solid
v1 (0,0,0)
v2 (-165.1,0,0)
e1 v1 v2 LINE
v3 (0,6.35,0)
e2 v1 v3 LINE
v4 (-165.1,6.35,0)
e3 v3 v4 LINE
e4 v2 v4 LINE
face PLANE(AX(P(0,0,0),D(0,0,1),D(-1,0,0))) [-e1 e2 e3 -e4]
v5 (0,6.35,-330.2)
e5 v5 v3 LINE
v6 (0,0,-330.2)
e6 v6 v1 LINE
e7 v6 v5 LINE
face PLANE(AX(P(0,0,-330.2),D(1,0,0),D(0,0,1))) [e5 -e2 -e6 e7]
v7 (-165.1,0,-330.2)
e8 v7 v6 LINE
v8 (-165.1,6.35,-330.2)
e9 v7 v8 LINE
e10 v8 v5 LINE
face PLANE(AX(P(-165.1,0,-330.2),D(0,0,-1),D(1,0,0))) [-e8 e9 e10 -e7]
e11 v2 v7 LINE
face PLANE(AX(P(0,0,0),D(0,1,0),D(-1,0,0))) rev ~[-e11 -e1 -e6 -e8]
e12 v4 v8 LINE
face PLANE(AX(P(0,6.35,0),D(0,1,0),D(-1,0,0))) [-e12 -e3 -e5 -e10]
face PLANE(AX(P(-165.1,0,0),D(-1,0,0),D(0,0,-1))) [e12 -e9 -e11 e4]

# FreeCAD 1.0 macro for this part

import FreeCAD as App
import Part
import Sketcher

V = App.Vector
Q = App.Units.Quantity

doc = App.newDocument("Part")
body = doc.addObject("PartDesign::Body", "Body")

# Sketch on XZ plane
sketch1 = doc.addObject("Sketcher::SketchObject", "Sketch")
body.addObject(sketch1)
sketch1.AttachmentSupport = (doc.XZ_Plane, [""])
sketch1.MapMode = "FlatFace"
sketch1.addGeometry(Part.LineSegment(V(-165, 0, 0), V(0, 0, 0)), False)
sketch1.addGeometry(Part.LineSegment(V(0, 0, 0), V(0, -330, 0)), False)
sketch1.addGeometry(Part.LineSegment(V(0, -330, 0), V(-165, -330, 0)), False)
sketch1.addGeometry(Part.LineSegment(V(-165, -330, 0), V(-165, 0, 0)), False)
sketch1.addConstraint(Sketcher.Constraint("Coincident", 0, 2, 1, 1))
sketch1.addConstraint(Sketcher.Constraint("Coincident", 1, 2, 2, 1))
sketch1.addConstraint(Sketcher.Constraint("Coincident", 2, 2, 3, 1))
sketch1.addConstraint(Sketcher.Constraint("Coincident", 3, 2, 0, 1))
sketch1.addConstraint(Sketcher.Constraint("Horizontal", 0))
sketch1.addConstraint(Sketcher.Constraint("Vertical", 1))
sketch1.addConstraint(Sketcher.Constraint("Horizontal", 2))
sketch1.addConstraint(Sketcher.Constraint("Vertical", 3))
sketch1.addConstraint(Sketcher.Constraint("Coincident", 0, 2, -1, 1))
sketch1.addConstraint(Sketcher.Constraint("DistanceY", 1, 2, 1, 1, Q("13 in")))
sketch1.addConstraint(Sketcher.Constraint("DistanceX", 0, 1, 0, 2, Q("6.5 in")))
pad1 = doc.addObject("PartDesign::Pad", "Pad")
body.addObject(pad1)
pad1.Profile = sketch1
pad1.Length = Q("0.25 in")
pad1.Reversed = True

doc.recompute()
